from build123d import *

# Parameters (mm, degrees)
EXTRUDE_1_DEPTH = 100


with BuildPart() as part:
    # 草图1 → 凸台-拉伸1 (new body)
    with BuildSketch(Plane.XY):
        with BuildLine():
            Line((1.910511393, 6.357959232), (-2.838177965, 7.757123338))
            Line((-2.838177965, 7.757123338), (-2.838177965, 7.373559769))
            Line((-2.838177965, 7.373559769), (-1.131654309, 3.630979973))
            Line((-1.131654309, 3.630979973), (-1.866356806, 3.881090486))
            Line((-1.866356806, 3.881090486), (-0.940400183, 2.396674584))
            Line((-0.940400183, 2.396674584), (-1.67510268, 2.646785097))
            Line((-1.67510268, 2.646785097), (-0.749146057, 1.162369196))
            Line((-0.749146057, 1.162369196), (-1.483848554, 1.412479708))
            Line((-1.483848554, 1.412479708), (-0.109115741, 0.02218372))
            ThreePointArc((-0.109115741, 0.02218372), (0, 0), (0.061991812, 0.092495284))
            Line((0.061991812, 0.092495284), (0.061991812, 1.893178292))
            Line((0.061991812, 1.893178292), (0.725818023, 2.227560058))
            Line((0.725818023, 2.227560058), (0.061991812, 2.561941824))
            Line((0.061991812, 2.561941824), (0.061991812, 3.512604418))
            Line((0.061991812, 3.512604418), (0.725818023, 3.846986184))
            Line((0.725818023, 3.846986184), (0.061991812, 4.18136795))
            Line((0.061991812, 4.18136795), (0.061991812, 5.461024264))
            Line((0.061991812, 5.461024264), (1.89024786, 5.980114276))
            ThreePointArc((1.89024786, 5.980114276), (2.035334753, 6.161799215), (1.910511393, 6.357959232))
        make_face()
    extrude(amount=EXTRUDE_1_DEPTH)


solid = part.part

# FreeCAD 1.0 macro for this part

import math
import FreeCAD as App
import Part
import Sketcher

V = App.Vector

doc = App.newDocument("Part")
params = doc.addObject("Spreadsheet::Sheet", "Params")
for row, (alias, value) in enumerate([
    ("sketch1_radius", "0.1 mm"),
    ("sketch1_radius2", "0.2 mm"),
    ("pad1_length", "100 mm"),
], start=1):
    params.set(f"A{row}", alias)
    params.set(f"B{row}", "=" + value)
    params.setAlias(f"B{row}", alias)

body = doc.addObject("PartDesign::Body", "Body")

sketch1 = body.newObject("Sketcher::SketchObject", "Sketch")
sketch1.AttachmentSupport = (doc.getObject("XY_Plane"), [""])
sketch1.MapMode = "FlatFace"
sketch1.addGeometry([
    Part.LineSegment(V(1.910511, 6.357959, 0), V(-2.838178, 7.757123, 0)),
    Part.LineSegment(V(-2.838178, 7.757123, 0), V(-2.838178, 7.37356, 0)),
    Part.LineSegment(V(-2.838178, 7.37356, 0), V(-1.131654, 3.63098, 0)),
    Part.LineSegment(V(-1.131654, 3.63098, 0), V(-1.866357, 3.88109, 0)),
    Part.LineSegment(V(-1.866357, 3.88109, 0), V(-0.9404, 2.396675, 0)),
    Part.LineSegment(V(-0.9404, 2.396675, 0), V(-1.675103, 2.646785, 0)),
    Part.LineSegment(V(-1.675103, 2.646785, 0), V(-0.749146, 1.162369, 0)),
    Part.LineSegment(V(-0.749146, 1.162369, 0), V(-1.483849, 1.41248, 0)),
    Part.LineSegment(V(-1.483849, 1.41248, 0), V(-0.109116, 0.022184, 0)),
    Part.ArcOfCircle(Part.Circle(V(-0.038008, 0.092495, 0), V(0, 0, 1), 0.1), math.radians(-135.32249), math.radians(-0.000001)),
    Part.LineSegment(V(0.061992, 0.092495, 0), V(0.061992, 1.893178, 0)),
    Part.LineSegment(V(0.061992, 1.893178, 0), V(0.725818, 2.22756, 0)),
    Part.LineSegment(V(0.725818, 2.22756, 0), V(0.061992, 2.561942, 0)),
    Part.LineSegment(V(0.061992, 2.561942, 0), V(0.061992, 3.512604, 0)),
    Part.LineSegment(V(0.061992, 3.512604, 0), V(0.725818, 3.846986, 0)),
    Part.LineSegment(V(0.725818, 3.846986, 0), V(0.061992, 4.181368, 0)),
    Part.LineSegment(V(0.061992, 4.181368, 0), V(0.061992, 5.461024, 0)),
    Part.LineSegment(V(0.061992, 5.461024, 0), V(1.890248, 5.980114, 0)),
    Part.ArcOfCircle(Part.Circle(V(1.835622, 6.17251, 0), V(0, 0, 1), 0.2), math.radians(-74.14936), math.radians(68.009785)),
], False)
sketch1.addConstraint([
    Sketcher.Constraint("Coincident", 0, 2, 1, 1),
    Sketcher.Constraint("Coincident", 1, 2, 2, 1),
    Sketcher.Constraint("Coincident", 2, 2, 3, 1),
    Sketcher.Constraint("Coincident", 3, 2, 4, 1),
    Sketcher.Constraint("Coincident", 4, 2, 5, 1),
    Sketcher.Constraint("Coincident", 5, 2, 6, 1),
    Sketcher.Constraint("Coincident", 6, 2, 7, 1),
    Sketcher.Constraint("Coincident", 7, 2, 8, 1),
    Sketcher.Constraint("Tangent", 8, 2, 9, 1),
    Sketcher.Constraint("Tangent", 9, 2, 10, 1),
    Sketcher.Constraint("Coincident", 10, 2, 11, 1),
    Sketcher.Constraint("Coincident", 11, 2, 12, 1),
    Sketcher.Constraint("Coincident", 12, 2, 13, 1),
    Sketcher.Constraint("Coincident", 13, 2, 14, 1),
    Sketcher.Constraint("Coincident", 14, 2, 15, 1),
    Sketcher.Constraint("Coincident", 15, 2, 16, 1),
    Sketcher.Constraint("Coincident", 16, 2, 17, 1),
    Sketcher.Constraint("Tangent", 17, 2, 18, 1),
    Sketcher.Constraint("Coincident", 18, 2, 0, 1),
    Sketcher.Constraint("Vertical", 1),
    Sketcher.Constraint("Vertical", 10),
    Sketcher.Constraint("Vertical", 13),
    Sketcher.Constraint("Vertical", 16),
    Sketcher.Constraint("Parallel", 3, 5),
    Sketcher.Constraint("Parallel", 4, 6),
    Sketcher.Constraint("Parallel", 5, 7),
    Sketcher.Constraint("Parallel", 11, 14),
    Sketcher.Constraint("Parallel", 12, 15),
    Sketcher.Constraint("Vertical", 10, 2, 12, 2),
    Sketcher.Constraint("Vertical", 11, 2, 14, 2),
    Sketcher.Constraint("Vertical", 13, 2, 15, 2),
    Sketcher.Constraint("Equal", 3, 5),
    Sketcher.Constraint("Equal", 4, 6),
    Sketcher.Constraint("Equal", 5, 7),
    Sketcher.Constraint("Equal", 11, 12),
    Sketcher.Constraint("Radius", 9, 0.1),
    Sketcher.Constraint("Radius", 18, 0.2),
    Sketcher.Constraint("Distance", 8, 1.955202),
    Sketcher.Constraint("DistanceX", 4, 2, -1, 1, 0.9404),
    Sketcher.Constraint("DistanceX", 0, 2, 18, 3, 4.6738),
    Sketcher.Constraint("DistanceY", 7, 2, 2, 2, 2.2185),
    Sketcher.Constraint("DistanceY", 8, 2, 5, 2, 2.624601),
    Sketcher.Constraint("DistanceY", 7, 2, 10, 2, 0.480699),
    Sketcher.Constraint("Distance", 4, 1.749539),
    Sketcher.Constraint("Distance", 17, 1.90052),
    Sketcher.Constraint("DistanceY", 1, 2, 1, 1, 0.383564),
    Sketcher.Constraint("DistanceY", 10, 1, 10, 2, 1.800683),
    Sketcher.Constraint("DistanceY", 13, 1, 13, 2, 0.950663),
    Sketcher.Constraint("DistanceY", 16, 1, 16, 2, 1.279656),
    Sketcher.Constraint("DistanceX", 9, 3, -1, 1, 0.038008),
    Sketcher.Constraint("DistanceX", -1, 1, 18, 3, 1.835622),
    Sketcher.Constraint("DistanceY", -1, 1, 18, 3, 6.17251),
    Sketcher.Constraint("DistanceY", -1, 1, 1, 2, 7.37356),
    Sketcher.Constraint("DistanceY", -1, 1, 2, 2, 3.63098),
    Sketcher.Constraint("DistanceX", -1, 1, 11, 2, 0.725818),
    Sketcher.Constraint("DistanceX", -1, 1, 18, 2, 1.910511),
])
sketch1.setExpression("Constraints[35]", "Params.sketch1_radius")
sketch1.setExpression("Constraints[36]", "Params.sketch1_radius2")
pad1 = body.newObject("PartDesign::Pad", "Pad")
pad1.Profile = sketch1
pad1.setExpression("Length", "Params.pad1_length")

doc.recompute()
